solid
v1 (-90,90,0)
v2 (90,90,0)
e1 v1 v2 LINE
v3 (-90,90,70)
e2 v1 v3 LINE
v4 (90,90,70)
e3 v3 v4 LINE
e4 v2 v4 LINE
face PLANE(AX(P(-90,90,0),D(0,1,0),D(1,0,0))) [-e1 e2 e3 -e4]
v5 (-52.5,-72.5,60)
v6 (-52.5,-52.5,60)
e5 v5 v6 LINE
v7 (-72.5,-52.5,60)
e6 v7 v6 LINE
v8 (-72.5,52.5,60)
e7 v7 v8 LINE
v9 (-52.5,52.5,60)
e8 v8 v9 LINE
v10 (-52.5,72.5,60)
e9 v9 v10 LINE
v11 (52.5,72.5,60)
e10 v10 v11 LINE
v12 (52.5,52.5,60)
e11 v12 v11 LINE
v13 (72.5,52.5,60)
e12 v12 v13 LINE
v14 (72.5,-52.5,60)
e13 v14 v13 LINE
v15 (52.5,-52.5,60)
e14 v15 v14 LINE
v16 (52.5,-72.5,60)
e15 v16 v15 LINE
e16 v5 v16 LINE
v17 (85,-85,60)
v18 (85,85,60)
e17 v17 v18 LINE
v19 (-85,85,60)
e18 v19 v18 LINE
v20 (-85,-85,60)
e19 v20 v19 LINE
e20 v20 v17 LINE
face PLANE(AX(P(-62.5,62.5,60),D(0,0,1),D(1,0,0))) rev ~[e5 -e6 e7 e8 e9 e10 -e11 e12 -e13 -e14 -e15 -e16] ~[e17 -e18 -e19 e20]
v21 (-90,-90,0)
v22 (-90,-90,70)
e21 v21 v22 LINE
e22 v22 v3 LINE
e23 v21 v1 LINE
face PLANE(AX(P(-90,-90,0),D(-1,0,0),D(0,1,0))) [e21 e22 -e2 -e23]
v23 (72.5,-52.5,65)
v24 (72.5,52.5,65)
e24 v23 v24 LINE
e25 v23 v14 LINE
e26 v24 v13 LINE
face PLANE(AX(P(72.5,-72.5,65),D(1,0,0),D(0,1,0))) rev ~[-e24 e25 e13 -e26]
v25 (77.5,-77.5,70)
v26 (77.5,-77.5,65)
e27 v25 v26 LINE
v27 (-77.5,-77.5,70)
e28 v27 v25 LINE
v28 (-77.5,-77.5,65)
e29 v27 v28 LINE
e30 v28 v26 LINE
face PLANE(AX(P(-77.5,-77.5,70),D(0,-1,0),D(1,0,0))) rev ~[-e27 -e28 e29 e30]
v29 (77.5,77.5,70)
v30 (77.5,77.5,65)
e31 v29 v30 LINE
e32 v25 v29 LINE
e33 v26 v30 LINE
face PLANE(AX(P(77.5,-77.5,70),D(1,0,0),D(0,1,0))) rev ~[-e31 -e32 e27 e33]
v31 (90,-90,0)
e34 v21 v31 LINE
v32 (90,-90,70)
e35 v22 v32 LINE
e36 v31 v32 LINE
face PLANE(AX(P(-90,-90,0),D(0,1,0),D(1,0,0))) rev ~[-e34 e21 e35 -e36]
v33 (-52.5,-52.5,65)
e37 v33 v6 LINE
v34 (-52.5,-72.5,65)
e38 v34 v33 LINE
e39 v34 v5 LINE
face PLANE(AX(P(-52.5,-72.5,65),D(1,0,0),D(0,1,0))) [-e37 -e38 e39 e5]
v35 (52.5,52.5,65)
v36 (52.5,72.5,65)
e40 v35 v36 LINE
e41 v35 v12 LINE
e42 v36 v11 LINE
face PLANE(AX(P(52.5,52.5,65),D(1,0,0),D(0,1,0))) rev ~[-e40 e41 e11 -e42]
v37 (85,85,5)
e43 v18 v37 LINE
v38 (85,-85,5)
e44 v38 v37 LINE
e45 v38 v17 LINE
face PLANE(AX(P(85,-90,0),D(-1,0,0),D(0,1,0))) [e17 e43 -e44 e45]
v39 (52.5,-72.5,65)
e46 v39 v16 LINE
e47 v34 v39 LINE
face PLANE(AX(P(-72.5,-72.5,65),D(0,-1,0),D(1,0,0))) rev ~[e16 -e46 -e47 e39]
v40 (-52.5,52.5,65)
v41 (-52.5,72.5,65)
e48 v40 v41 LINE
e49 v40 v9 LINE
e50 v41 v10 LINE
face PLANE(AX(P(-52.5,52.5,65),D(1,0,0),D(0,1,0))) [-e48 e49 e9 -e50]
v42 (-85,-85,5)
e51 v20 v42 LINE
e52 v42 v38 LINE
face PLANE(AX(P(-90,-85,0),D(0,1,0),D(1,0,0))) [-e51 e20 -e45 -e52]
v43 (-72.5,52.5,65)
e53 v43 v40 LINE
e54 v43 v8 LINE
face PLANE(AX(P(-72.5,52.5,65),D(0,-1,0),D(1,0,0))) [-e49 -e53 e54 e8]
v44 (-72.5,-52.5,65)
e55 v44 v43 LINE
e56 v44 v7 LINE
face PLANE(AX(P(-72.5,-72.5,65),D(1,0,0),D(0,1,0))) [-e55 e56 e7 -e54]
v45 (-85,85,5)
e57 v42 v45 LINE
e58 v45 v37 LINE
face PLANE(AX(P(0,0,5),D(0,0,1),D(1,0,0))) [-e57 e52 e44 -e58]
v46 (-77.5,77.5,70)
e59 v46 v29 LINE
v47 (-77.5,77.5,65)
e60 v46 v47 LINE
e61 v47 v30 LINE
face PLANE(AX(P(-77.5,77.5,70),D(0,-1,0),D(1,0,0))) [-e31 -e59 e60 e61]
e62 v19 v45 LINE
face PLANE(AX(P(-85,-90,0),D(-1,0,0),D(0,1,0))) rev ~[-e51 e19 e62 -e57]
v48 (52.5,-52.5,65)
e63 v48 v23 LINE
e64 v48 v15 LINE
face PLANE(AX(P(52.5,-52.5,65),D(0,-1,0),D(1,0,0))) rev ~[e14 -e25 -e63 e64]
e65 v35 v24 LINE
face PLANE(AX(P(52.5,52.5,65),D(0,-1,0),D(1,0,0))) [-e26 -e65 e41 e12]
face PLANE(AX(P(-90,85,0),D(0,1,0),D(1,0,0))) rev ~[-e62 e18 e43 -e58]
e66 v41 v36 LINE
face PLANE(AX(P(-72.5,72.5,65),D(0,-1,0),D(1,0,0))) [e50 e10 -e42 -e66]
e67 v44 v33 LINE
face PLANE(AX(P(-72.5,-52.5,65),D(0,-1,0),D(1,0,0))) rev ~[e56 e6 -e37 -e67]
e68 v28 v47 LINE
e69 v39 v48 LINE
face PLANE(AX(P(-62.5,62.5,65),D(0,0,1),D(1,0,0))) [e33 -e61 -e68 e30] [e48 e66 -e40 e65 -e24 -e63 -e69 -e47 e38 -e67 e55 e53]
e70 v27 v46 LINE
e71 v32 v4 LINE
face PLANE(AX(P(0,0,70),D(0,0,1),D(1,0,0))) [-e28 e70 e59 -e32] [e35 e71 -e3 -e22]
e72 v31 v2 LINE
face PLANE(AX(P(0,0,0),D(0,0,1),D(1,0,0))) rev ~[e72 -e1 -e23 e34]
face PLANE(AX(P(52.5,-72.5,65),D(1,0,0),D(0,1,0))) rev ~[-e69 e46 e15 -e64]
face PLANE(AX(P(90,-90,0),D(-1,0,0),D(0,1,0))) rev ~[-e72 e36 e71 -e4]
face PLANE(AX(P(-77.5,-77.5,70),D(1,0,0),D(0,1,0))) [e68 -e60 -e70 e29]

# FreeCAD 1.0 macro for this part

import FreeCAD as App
import Part
import Sketcher
from FreeCAD import Vector


def faces_at(feature, points):
    """Names of the faces that lie closest to the given points."""
    faces = feature.Shape.Faces
    near = lambda p: min(range(len(faces)), key=lambda i: faces[i].distToShape(Part.Vertex(*p))[0])
    return sorted({f"Face{near(p) + 1}" for p in points})


def add_polygon(sketch, points):
    """Adds a closed chain of lines whose ends are joined by coincident constraints."""
    first, n = sketch.GeometryCount, len(points)
    for a, b in zip(points, points[1:] + points[:1]):
        sketch.addGeometry(Part.LineSegment(App.Vector(*a, 0), App.Vector(*b, 0)), False)
    for i in range(n):
        sketch.addConstraint(Sketcher.Constraint("Coincident", first + i, 2, first + (i + 1) % n, 1))

doc = App.newDocument("Part")
body = doc.addObject("PartDesign::Body", "Body")

sketch1 = body.newObject("Sketcher::SketchObject", "Sketch")
sketch1.AttachmentSupport = (doc.getObject("XY_Plane"), [""])
sketch1.MapMode = "FlatFace"
add_polygon(sketch1, [(-90, 90), (-90, -90), (90, -90), (90, 90)])
sketch1.addConstraint(Sketcher.Constraint("Vertical", 0))
sketch1.addConstraint(Sketcher.Constraint("Horizontal", 1))
sketch1.addConstraint(Sketcher.Constraint("Vertical", 2))
sketch1.addConstraint(Sketcher.Constraint("Horizontal", 3))
sketch1.addConstraint(Sketcher.Constraint("Symmetric", 0, 2, 2, 2, -1, 1))
sketch1.addConstraint(Sketcher.Constraint("Equal", 3, 0))
sketch1.addConstraint(Sketcher.Constraint("DistanceX", 1, 1, 1, 2, 180.0))
pad1 = body.newObject("PartDesign::Pad", "Pad")
pad1.Profile = sketch1
pad1.Length = 70
doc.recompute()

thickness = body.newObject("PartDesign::Thickness", "Thickness")
thickness.Base = (pad1, faces_at(pad1, [(0, 0, 70)]))
thickness.Value = 5
thickness.Reversed = True
thickness.Join = "Arc"

sketch2 = body.newObject("Sketcher::SketchObject", "Sketch001")
sketch2.AttachmentSupport = (doc.getObject("XY_Plane"), [""])
sketch2.MapMode = "FlatFace"
sketch2.AttachmentOffset = App.Placement(Vector(0, 0, 70), App.Rotation())
add_polygon(sketch2, [(-85, 85), (-85, -85), (85, -85), (85, 85)])
sketch2.addConstraint(Sketcher.Constraint("Vertical", 0))
sketch2.addConstraint(Sketcher.Constraint("Horizontal", 1))
sketch2.addConstraint(Sketcher.Constraint("Vertical", 2))
sketch2.addConstraint(Sketcher.Constraint("Horizontal", 3))
sketch2.addConstraint(Sketcher.Constraint("Symmetric", 0, 2, 2, 2, -1, 1))
sketch2.addConstraint(Sketcher.Constraint("Equal", 3, 0))
sketch2.addConstraint(Sketcher.Constraint("DistanceX", 1, 1, 1, 2, 170.0))
pad2 = body.newObject("PartDesign::Pad", "Pad001")
pad2.Profile = sketch2
pad2.Length = 10
pad2.Reversed = True

sketch3 = body.newObject("Sketcher::SketchObject", "Sketch002")
sketch3.AttachmentSupport = (doc.getObject("XY_Plane"), [""])
sketch3.MapMode = "FlatFace"
sketch3.AttachmentOffset = App.Placement(Vector(0, 0, 70), App.Rotation())
add_polygon(sketch3, [(-78, 78), (-78, -78), (78, -78), (78, 78)])
sketch3.addConstraint(Sketcher.Constraint("Vertical", 0))
sketch3.addConstraint(Sketcher.Constraint("Horizontal", 1))
sketch3.addConstraint(Sketcher.Constraint("Vertical", 2))
sketch3.addConstraint(Sketcher.Constraint("Horizontal", 3))
sketch3.addConstraint(Sketcher.Constraint("Symmetric", 0, 2, 2, 2, -1, 1))
sketch3.addConstraint(Sketcher.Constraint("Equal", 3, 0))
sketch3.addConstraint(Sketcher.Constraint("DistanceX", 1, 1, 1, 2, 155.0))
pocket1 = body.newObject("PartDesign::Pocket", "Pocket")
pocket1.Profile = sketch3
pocket1.Length = 5

sketch4 = body.newObject("Sketcher::SketchObject", "Sketch003")
sketch4.AttachmentSupport = (doc.getObject("XY_Plane"), [""])
sketch4.MapMode = "FlatFace"
sketch4.AttachmentOffset = App.Placement(Vector(0, 0, 65), App.Rotation())
add_polygon(sketch4, [(-72, 72), (-72, -72), (72, -72), (72, 72)])
sketch4.addConstraint(Sketcher.Constraint("Vertical", 0))
sketch4.addConstraint(Sketcher.Constraint("Horizontal", 1))
sketch4.addConstraint(Sketcher.Constraint("Vertical", 2))
sketch4.addConstraint(Sketcher.Constraint("Horizontal", 3))
sketch4.addConstraint(Sketcher.Constraint("Symmetric", 0, 2, 2, 2, -1, 1))
sketch4.addConstraint(Sketcher.Constraint("Equal", 3, 0))
sketch4.addConstraint(Sketcher.Constraint("DistanceX", 1, 1, 1, 2, 145.0))
pocket2 = body.newObject("PartDesign::Pocket", "Pocket001")
pocket2.Profile = sketch4
pocket2.Length = 25

sketch5 = body.newObject("Sketcher::SketchObject", "Sketch004")
sketch5.AttachmentSupport = (doc.getObject("XY_Plane"), [""])
sketch5.MapMode = "FlatFace"
sketch5.AttachmentOffset = App.Placement(Vector(0, 0, 65), App.Rotation())
add_polygon(sketch5, [(-72, 72), (-72, 52), (-52, 52), (-52, 72)])
add_polygon(sketch5, [(52, 72), (52, 52), (72, 52), (72, 72)])
add_polygon(sketch5, [(52, -52), (52, -72), (72, -72), (72, -52)])
add_polygon(sketch5, [(-72, -52), (-72, -72), (-52, -72), (-52, -52)])
sketch5.addConstraint(Sketcher.Constraint("Vertical", 0))
sketch5.addConstraint(Sketcher.Constraint("Horizontal", 1))
sketch5.addConstraint(Sketcher.Constraint("Vertical", 2))
sketch5.addConstraint(Sketcher.Constraint("Horizontal", 3))
sketch5.addConstraint(Sketcher.Constraint("Vertical", 4))
sketch5.addConstraint(Sketcher.Constraint("Horizontal", 5))
sketch5.addConstraint(Sketcher.Constraint("Vertical", 6))
sketch5.addConstraint(Sketcher.Constraint("Horizontal", 7))
sketch5.addConstraint(Sketcher.Constraint("Vertical", 8))
sketch5.addConstraint(Sketcher.Constraint("Horizontal", 9))
sketch5.addConstraint(Sketcher.Constraint("Vertical", 10))
sketch5.addConstraint(Sketcher.Constraint("Horizontal", 11))
sketch5.addConstraint(Sketcher.Constraint("Vertical", 12))
sketch5.addConstraint(Sketcher.Constraint("Horizontal", 13))
sketch5.addConstraint(Sketcher.Constraint("Vertical", 14))
sketch5.addConstraint(Sketcher.Constraint("Horizontal", 15))
sketch5.addConstraint(Sketcher.Constraint("Symmetric", 2, 2, 8, 2, -1, 1))
sketch5.addConstraint(Sketcher.Constraint("Symmetric", 0, 2, 10, 2, -1, 1))
sketch5.addConstraint(Sketcher.Constraint("Symmetric", 6, 2, 12, 2, -1, 1))
sketch5.addConstraint(Sketcher.Constraint("Symmetric", 4, 2, 14, 2, -1, 1))
sketch5.addConstraint(Sketcher.Constraint("Symmetric", 1, 2, 4, 2, -2))
sketch5.addConstraint(Sketcher.Constraint("Symmetric", 3, 2, 6, 2, -2))
sketch5.addConstraint(Sketcher.Constraint("Equal", 15, 0))
sketch5.addConstraint(Sketcher.Constraint("DistanceX", 1, 1, 1, 2, 20.0))
sketch5.addConstraint(Sketcher.Constraint("DistanceX", 1, 2, 4, 2, 105.0))
sketch5.addConstraint(Sketcher.Constraint("DistanceY", 8, 2, 4, 2, 125.0))
pad3 = body.newObject("PartDesign::Pad", "Pad002")
pad3.Profile = sketch5
pad3.Length = 5
pad3.Reversed = True

doc.recompute()
